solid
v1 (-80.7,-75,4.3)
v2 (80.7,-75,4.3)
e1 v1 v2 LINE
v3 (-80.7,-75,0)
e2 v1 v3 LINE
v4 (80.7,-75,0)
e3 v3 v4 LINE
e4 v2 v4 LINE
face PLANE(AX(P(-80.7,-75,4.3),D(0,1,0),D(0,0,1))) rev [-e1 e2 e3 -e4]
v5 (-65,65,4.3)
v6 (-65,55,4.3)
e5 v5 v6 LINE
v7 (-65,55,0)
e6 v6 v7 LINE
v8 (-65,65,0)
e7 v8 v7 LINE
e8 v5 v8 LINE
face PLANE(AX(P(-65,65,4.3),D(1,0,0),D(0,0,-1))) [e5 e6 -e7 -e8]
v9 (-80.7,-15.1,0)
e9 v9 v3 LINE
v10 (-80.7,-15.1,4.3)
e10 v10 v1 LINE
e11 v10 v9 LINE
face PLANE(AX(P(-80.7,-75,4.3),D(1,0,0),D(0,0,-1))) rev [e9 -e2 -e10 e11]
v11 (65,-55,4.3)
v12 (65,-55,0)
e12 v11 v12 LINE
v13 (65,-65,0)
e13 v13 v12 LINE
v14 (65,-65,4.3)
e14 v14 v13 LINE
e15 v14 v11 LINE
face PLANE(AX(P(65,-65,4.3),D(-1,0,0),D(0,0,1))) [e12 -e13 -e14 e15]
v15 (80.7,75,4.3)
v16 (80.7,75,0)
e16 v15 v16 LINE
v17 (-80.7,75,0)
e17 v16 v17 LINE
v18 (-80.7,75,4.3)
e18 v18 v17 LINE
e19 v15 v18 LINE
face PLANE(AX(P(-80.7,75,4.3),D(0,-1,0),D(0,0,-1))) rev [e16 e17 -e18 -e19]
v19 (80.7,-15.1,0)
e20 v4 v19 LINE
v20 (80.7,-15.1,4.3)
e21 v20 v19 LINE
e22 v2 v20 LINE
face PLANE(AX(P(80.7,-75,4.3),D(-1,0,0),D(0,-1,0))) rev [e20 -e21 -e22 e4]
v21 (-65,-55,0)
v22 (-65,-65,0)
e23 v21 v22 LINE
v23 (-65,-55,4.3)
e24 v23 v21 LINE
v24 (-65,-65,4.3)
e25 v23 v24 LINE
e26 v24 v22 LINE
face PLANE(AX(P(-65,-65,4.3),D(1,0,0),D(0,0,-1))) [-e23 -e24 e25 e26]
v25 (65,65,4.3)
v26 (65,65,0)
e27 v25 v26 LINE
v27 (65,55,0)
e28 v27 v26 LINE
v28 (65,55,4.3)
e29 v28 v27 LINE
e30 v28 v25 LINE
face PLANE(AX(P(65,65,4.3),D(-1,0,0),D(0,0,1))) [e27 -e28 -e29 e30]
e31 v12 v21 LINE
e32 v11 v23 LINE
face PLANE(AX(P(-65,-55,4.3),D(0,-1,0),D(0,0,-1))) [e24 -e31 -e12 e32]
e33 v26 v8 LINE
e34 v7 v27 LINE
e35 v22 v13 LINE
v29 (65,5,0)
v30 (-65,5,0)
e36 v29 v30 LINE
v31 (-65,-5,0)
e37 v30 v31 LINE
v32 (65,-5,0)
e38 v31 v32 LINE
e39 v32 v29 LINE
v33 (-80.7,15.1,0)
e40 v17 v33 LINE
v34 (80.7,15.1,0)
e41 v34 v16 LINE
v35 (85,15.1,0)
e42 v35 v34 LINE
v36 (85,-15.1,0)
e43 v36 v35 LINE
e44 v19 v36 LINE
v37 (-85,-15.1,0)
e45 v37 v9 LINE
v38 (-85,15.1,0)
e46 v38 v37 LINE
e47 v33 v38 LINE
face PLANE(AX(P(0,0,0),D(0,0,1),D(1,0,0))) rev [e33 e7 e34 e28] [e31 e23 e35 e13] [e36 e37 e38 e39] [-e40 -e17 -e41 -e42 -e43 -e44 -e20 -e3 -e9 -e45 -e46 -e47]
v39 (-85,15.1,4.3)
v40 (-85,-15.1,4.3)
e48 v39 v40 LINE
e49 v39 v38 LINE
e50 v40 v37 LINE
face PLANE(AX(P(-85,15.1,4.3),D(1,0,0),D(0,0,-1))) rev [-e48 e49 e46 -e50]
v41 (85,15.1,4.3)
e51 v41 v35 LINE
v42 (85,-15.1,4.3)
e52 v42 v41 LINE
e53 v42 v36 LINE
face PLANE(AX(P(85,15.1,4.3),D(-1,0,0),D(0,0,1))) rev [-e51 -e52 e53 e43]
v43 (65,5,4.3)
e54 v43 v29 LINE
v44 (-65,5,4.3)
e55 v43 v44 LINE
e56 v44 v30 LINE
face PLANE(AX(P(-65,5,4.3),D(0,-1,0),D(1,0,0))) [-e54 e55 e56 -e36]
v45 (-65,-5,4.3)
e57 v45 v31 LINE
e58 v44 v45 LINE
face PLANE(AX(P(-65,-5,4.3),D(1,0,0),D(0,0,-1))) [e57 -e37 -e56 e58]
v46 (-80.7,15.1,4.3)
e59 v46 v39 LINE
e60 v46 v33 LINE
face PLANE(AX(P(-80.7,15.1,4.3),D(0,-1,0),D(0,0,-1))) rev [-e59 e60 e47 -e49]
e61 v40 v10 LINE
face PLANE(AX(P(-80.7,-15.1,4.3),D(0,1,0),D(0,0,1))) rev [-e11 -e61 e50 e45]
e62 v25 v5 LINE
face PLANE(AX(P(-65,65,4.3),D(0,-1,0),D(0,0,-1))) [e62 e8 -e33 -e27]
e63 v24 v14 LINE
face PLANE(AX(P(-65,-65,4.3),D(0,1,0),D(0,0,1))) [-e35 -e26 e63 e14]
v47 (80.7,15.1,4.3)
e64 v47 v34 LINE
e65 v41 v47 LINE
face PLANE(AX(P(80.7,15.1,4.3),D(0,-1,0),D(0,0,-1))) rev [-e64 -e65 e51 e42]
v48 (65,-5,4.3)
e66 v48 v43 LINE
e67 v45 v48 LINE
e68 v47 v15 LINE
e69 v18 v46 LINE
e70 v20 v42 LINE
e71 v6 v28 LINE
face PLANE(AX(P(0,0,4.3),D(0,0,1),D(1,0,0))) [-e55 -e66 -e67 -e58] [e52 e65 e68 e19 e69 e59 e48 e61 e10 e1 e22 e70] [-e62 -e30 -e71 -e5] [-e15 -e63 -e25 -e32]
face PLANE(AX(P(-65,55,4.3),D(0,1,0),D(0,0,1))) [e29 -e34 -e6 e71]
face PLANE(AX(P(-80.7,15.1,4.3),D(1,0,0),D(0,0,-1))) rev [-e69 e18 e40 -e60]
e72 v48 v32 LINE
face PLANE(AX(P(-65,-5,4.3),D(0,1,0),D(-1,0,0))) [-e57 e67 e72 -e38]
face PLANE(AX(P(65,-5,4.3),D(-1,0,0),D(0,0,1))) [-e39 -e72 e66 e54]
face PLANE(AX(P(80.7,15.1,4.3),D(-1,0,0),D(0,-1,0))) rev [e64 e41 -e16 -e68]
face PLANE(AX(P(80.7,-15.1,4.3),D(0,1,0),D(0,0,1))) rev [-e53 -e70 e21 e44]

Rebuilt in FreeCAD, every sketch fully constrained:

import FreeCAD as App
import Part
import Sketcher

V = App.Vector
Q = App.Units.Quantity

doc = App.newDocument("Part")
body = doc.addObject("PartDesign::Body", "Body")

sketch1 = body.newObject("Sketcher::SketchObject", "Sketch")
sketch1.AttachmentSupport = (doc.getObject("XY_Plane"), [""])
sketch1.MapMode = "FlatFace"
sketch1.addGeometry(Part.LineSegment(V(80.7, 15.1, 0), V(80.7, 75, 0)), False)
sketch1.addGeometry(Part.LineSegment(V(80.7, 75, 0), V(-80.7, 75, 0)), False)
sketch1.addGeometry(Part.LineSegment(V(-80.7, 75, 0), V(-80.7, 15.1, 0)), False)
sketch1.addGeometry(Part.LineSegment(V(-80.7, 15.1, 0), V(-85, 15.1, 0)), False)
sketch1.addGeometry(Part.LineSegment(V(-85, 15.1, 0), V(-85, -15.1, 0)), False)
sketch1.addGeometry(Part.LineSegment(V(-85, -15.1, 0), V(-80.7, -15.1, 0)), False)
sketch1.addGeometry(Part.LineSegment(V(-80.7, -15.1, 0), V(-80.7, -75, 0)), False)
sketch1.addGeometry(Part.LineSegment(V(-80.7, -75, 0), V(80.7, -75, 0)), False)
sketch1.addGeometry(Part.LineSegment(V(80.7, -75, 0), V(80.7, -15.1, 0)), False)
sketch1.addGeometry(Part.LineSegment(V(80.7, -15.1, 0), V(85, -15.1, 0)), False)
sketch1.addGeometry(Part.LineSegment(V(85, -15.1, 0), V(85, 15.1, 0)), False)
sketch1.addGeometry(Part.LineSegment(V(85, 15.1, 0), V(80.7, 15.1, 0)), False)
sketch1.addGeometry(Part.LineSegment(V(65, -65, 0), V(-65, -65, 0)), False)
sketch1.addGeometry(Part.LineSegment(V(-65, -65, 0), V(-65, -55, 0)), False)
sketch1.addGeometry(Part.LineSegment(V(-65, -55, 0), V(65, -55, 0)), False)
sketch1.addGeometry(Part.LineSegment(V(65, -55, 0), V(65, -65, 0)), False)
sketch1.addGeometry(Part.LineSegment(V(65, -5, 0), V(-65, -5, 0)), False)
sketch1.addGeometry(Part.LineSegment(V(-65, -5, 0), V(-65, 5, 0)), False)
sketch1.addGeometry(Part.LineSegment(V(-65, 5, 0), V(65, 5, 0)), False)
sketch1.addGeometry(Part.LineSegment(V(65, 5, 0), V(65, -5, 0)), False)
sketch1.addGeometry(Part.LineSegment(V(65, 55, 0), V(-65, 55, 0)), False)
sketch1.addGeometry(Part.LineSegment(V(-65, 55, 0), V(-65, 65, 0)), False)
sketch1.addGeometry(Part.LineSegment(V(-65, 65, 0), V(65, 65, 0)), False)
sketch1.addGeometry(Part.LineSegment(V(65, 65, 0), V(65, 55, 0)), False)
sketch1.addConstraint(Sketcher.Constraint("Coincident", 0, 2, 1, 1))
sketch1.addConstraint(Sketcher.Constraint("Coincident", 1, 2, 2, 1))
sketch1.addConstraint(Sketcher.Constraint("Coincident", 2, 2, 3, 1))
sketch1.addConstraint(Sketcher.Constraint("Coincident", 3, 2, 4, 1))
sketch1.addConstraint(Sketcher.Constraint("Coincident", 4, 2, 5, 1))
sketch1.addConstraint(Sketcher.Constraint("Coincident", 5, 2, 6, 1))
sketch1.addConstraint(Sketcher.Constraint("Coincident", 6, 2, 7, 1))
sketch1.addConstraint(Sketcher.Constraint("Coincident", 7, 2, 8, 1))
sketch1.addConstraint(Sketcher.Constraint("Coincident", 8, 2, 9, 1))
sketch1.addConstraint(Sketcher.Constraint("Coincident", 9, 2, 10, 1))
sketch1.addConstraint(Sketcher.Constraint("Coincident", 10, 2, 11, 1))
sketch1.addConstraint(Sketcher.Constraint("Coincident", 11, 2, 0, 1))
sketch1.addConstraint(Sketcher.Constraint("Coincident", 12, 2, 13, 1))
sketch1.addConstraint(Sketcher.Constraint("Coincident", 13, 2, 14, 1))
sketch1.addConstraint(Sketcher.Constraint("Coincident", 14, 2, 15, 1))
sketch1.addConstraint(Sketcher.Constraint("Coincident", 15, 2, 12, 1))
sketch1.addConstraint(Sketcher.Constraint("Coincident", 16, 2, 17, 1))
sketch1.addConstraint(Sketcher.Constraint("Coincident", 17, 2, 18, 1))
sketch1.addConstraint(Sketcher.Constraint("Coincident", 18, 2, 19, 1))
sketch1.addConstraint(Sketcher.Constraint("Coincident", 19, 2, 16, 1))
sketch1.addConstraint(Sketcher.Constraint("Coincident", 20, 2, 21, 1))
sketch1.addConstraint(Sketcher.Constraint("Coincident", 21, 2, 22, 1))
sketch1.addConstraint(Sketcher.Constraint("Coincident", 22, 2, 23, 1))
sketch1.addConstraint(Sketcher.Constraint("Coincident", 23, 2, 20, 1))
sketch1.addConstraint(Sketcher.Constraint("Vertical", 0))
sketch1.addConstraint(Sketcher.Constraint("Horizontal", 1))
sketch1.addConstraint(Sketcher.Constraint("Vertical", 2))
sketch1.addConstraint(Sketcher.Constraint("Horizontal", 3))
sketch1.addConstraint(Sketcher.Constraint("Vertical", 4))
sketch1.addConstraint(Sketcher.Constraint("Horizontal", 5))
sketch1.addConstraint(Sketcher.Constraint("Vertical", 6))
sketch1.addConstraint(Sketcher.Constraint("Horizontal", 7))
sketch1.addConstraint(Sketcher.Constraint("Vertical", 8))
sketch1.addConstraint(Sketcher.Constraint("Horizontal", 9))
sketch1.addConstraint(Sketcher.Constraint("Vertical", 10))
sketch1.addConstraint(Sketcher.Constraint("Horizontal", 11))
sketch1.addConstraint(Sketcher.Constraint("Horizontal", 12))
sketch1.addConstraint(Sketcher.Constraint("Vertical", 13))
sketch1.addConstraint(Sketcher.Constraint("Horizontal", 14))
sketch1.addConstraint(Sketcher.Constraint("Vertical", 15))
sketch1.addConstraint(Sketcher.Constraint("Horizontal", 16))
sketch1.addConstraint(Sketcher.Constraint("Vertical", 17))
sketch1.addConstraint(Sketcher.Constraint("Horizontal", 18))
sketch1.addConstraint(Sketcher.Constraint("Vertical", 19))
sketch1.addConstraint(Sketcher.Constraint("Horizontal", 20))
sketch1.addConstraint(Sketcher.Constraint("Vertical", 21))
sketch1.addConstraint(Sketcher.Constraint("Horizontal", 22))
sketch1.addConstraint(Sketcher.Constraint("Vertical", 23))
sketch1.addConstraint(Sketcher.Constraint("Symmetric", 0, 2, 6, 2, -1, 1))
sketch1.addConstraint(Sketcher.Constraint("Symmetric", 2, 2, 8, 2, -1, 1))
sketch1.addConstraint(Sketcher.Constraint("Symmetric", 4, 2, 10, 2, -1, 1))
sketch1.addConstraint(Sketcher.Constraint("Symmetric", 16, 2, 18, 2, -1, 1))
sketch1.addConstraint(Sketcher.Constraint("Symmetric", 14, 2, 20, 2, -1, 1))
sketch1.addConstraint(Sketcher.Constraint("Symmetric", 12, 2, 22, 2, -1, 1))
sketch1.addConstraint(Sketcher.Constraint("Symmetric", 5, 2, 8, 2, -2))
sketch1.addConstraint(Sketcher.Constraint("Vertical", 13, 2, 16, 2))
sketch1.addConstraint(Sketcher.Constraint("Vertical", 15, 2, 18, 2))
sketch1.addConstraint(Sketcher.Constraint("Equal", 15, 17))
sketch1.addConstraint(Sketcher.Constraint("DistanceX", 12, 2, 12, 1, Q("130 mm")))
sketch1.addConstraint(Sketcher.Constraint("DistanceY", 13, 1, 13, 2, Q("10 mm")))
sketch1.addConstraint(Sketcher.Constraint("DistanceX", 1, 2, 1, 1, Q("161.4 mm")))
sketch1.addConstraint(Sketcher.Constraint("DistanceX", 3, 2, 3, 1, Q("4.3 mm")))
sketch1.addConstraint(Sketcher.Constraint("DistanceY", 0, 1, 0, 2, Q("59.9 mm")))
sketch1.addConstraint(Sketcher.Constraint("DistanceY", 4, 2, 4, 1, Q("30.2 mm")))
sketch1.addConstraint(Sketcher.Constraint("DistanceY", 12, 2, -1, 1, Q("65 mm")))
pad1 = body.newObject("PartDesign::Pad", "Pad")
pad1.Profile = sketch1
pad1.Length = 4.3

doc.recompute()
